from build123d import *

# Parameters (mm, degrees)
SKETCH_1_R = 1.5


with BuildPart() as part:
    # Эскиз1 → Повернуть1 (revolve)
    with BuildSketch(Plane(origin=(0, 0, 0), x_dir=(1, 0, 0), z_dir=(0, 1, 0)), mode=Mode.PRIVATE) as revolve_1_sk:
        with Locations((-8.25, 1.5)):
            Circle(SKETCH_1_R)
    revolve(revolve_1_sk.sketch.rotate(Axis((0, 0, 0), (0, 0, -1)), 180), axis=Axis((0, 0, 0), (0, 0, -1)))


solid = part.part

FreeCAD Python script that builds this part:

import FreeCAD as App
import Part
import Sketcher
Q = App.Units.Quantity

doc = App.newDocument("Part")
body = doc.addObject("PartDesign::Body", "Body")

sketch1 = body.newObject("Sketcher::SketchObject", "Sketch")
sketch1.AttachmentSupport = (doc.getObject("XZ_Plane"), [""])
sketch1.MapMode = "FlatFace"
sketch1.addGeometry(Part.Circle(App.Vector(-8.2, -1.5, 0), App.Vector(0, 0, 1), 1.5), False)
sketch1.addConstraint(Sketcher.Constraint("Diameter", 0, Q("3 mm")))
sketch1.addConstraint(Sketcher.Constraint("DistanceY", 0, 3, -1, 1, Q("1.5 mm")))
sketch1.addConstraint(Sketcher.Constraint("DistanceX", 0, 3, -1, 1, Q("8.25 mm")))
revolution = body.newObject("PartDesign::Revolution", "Revolution")
revolution.Profile = sketch1
revolution.ReferenceAxis = (sketch1, ["V_Axis"])
revolution.Angle = 360

doc.recompute()
